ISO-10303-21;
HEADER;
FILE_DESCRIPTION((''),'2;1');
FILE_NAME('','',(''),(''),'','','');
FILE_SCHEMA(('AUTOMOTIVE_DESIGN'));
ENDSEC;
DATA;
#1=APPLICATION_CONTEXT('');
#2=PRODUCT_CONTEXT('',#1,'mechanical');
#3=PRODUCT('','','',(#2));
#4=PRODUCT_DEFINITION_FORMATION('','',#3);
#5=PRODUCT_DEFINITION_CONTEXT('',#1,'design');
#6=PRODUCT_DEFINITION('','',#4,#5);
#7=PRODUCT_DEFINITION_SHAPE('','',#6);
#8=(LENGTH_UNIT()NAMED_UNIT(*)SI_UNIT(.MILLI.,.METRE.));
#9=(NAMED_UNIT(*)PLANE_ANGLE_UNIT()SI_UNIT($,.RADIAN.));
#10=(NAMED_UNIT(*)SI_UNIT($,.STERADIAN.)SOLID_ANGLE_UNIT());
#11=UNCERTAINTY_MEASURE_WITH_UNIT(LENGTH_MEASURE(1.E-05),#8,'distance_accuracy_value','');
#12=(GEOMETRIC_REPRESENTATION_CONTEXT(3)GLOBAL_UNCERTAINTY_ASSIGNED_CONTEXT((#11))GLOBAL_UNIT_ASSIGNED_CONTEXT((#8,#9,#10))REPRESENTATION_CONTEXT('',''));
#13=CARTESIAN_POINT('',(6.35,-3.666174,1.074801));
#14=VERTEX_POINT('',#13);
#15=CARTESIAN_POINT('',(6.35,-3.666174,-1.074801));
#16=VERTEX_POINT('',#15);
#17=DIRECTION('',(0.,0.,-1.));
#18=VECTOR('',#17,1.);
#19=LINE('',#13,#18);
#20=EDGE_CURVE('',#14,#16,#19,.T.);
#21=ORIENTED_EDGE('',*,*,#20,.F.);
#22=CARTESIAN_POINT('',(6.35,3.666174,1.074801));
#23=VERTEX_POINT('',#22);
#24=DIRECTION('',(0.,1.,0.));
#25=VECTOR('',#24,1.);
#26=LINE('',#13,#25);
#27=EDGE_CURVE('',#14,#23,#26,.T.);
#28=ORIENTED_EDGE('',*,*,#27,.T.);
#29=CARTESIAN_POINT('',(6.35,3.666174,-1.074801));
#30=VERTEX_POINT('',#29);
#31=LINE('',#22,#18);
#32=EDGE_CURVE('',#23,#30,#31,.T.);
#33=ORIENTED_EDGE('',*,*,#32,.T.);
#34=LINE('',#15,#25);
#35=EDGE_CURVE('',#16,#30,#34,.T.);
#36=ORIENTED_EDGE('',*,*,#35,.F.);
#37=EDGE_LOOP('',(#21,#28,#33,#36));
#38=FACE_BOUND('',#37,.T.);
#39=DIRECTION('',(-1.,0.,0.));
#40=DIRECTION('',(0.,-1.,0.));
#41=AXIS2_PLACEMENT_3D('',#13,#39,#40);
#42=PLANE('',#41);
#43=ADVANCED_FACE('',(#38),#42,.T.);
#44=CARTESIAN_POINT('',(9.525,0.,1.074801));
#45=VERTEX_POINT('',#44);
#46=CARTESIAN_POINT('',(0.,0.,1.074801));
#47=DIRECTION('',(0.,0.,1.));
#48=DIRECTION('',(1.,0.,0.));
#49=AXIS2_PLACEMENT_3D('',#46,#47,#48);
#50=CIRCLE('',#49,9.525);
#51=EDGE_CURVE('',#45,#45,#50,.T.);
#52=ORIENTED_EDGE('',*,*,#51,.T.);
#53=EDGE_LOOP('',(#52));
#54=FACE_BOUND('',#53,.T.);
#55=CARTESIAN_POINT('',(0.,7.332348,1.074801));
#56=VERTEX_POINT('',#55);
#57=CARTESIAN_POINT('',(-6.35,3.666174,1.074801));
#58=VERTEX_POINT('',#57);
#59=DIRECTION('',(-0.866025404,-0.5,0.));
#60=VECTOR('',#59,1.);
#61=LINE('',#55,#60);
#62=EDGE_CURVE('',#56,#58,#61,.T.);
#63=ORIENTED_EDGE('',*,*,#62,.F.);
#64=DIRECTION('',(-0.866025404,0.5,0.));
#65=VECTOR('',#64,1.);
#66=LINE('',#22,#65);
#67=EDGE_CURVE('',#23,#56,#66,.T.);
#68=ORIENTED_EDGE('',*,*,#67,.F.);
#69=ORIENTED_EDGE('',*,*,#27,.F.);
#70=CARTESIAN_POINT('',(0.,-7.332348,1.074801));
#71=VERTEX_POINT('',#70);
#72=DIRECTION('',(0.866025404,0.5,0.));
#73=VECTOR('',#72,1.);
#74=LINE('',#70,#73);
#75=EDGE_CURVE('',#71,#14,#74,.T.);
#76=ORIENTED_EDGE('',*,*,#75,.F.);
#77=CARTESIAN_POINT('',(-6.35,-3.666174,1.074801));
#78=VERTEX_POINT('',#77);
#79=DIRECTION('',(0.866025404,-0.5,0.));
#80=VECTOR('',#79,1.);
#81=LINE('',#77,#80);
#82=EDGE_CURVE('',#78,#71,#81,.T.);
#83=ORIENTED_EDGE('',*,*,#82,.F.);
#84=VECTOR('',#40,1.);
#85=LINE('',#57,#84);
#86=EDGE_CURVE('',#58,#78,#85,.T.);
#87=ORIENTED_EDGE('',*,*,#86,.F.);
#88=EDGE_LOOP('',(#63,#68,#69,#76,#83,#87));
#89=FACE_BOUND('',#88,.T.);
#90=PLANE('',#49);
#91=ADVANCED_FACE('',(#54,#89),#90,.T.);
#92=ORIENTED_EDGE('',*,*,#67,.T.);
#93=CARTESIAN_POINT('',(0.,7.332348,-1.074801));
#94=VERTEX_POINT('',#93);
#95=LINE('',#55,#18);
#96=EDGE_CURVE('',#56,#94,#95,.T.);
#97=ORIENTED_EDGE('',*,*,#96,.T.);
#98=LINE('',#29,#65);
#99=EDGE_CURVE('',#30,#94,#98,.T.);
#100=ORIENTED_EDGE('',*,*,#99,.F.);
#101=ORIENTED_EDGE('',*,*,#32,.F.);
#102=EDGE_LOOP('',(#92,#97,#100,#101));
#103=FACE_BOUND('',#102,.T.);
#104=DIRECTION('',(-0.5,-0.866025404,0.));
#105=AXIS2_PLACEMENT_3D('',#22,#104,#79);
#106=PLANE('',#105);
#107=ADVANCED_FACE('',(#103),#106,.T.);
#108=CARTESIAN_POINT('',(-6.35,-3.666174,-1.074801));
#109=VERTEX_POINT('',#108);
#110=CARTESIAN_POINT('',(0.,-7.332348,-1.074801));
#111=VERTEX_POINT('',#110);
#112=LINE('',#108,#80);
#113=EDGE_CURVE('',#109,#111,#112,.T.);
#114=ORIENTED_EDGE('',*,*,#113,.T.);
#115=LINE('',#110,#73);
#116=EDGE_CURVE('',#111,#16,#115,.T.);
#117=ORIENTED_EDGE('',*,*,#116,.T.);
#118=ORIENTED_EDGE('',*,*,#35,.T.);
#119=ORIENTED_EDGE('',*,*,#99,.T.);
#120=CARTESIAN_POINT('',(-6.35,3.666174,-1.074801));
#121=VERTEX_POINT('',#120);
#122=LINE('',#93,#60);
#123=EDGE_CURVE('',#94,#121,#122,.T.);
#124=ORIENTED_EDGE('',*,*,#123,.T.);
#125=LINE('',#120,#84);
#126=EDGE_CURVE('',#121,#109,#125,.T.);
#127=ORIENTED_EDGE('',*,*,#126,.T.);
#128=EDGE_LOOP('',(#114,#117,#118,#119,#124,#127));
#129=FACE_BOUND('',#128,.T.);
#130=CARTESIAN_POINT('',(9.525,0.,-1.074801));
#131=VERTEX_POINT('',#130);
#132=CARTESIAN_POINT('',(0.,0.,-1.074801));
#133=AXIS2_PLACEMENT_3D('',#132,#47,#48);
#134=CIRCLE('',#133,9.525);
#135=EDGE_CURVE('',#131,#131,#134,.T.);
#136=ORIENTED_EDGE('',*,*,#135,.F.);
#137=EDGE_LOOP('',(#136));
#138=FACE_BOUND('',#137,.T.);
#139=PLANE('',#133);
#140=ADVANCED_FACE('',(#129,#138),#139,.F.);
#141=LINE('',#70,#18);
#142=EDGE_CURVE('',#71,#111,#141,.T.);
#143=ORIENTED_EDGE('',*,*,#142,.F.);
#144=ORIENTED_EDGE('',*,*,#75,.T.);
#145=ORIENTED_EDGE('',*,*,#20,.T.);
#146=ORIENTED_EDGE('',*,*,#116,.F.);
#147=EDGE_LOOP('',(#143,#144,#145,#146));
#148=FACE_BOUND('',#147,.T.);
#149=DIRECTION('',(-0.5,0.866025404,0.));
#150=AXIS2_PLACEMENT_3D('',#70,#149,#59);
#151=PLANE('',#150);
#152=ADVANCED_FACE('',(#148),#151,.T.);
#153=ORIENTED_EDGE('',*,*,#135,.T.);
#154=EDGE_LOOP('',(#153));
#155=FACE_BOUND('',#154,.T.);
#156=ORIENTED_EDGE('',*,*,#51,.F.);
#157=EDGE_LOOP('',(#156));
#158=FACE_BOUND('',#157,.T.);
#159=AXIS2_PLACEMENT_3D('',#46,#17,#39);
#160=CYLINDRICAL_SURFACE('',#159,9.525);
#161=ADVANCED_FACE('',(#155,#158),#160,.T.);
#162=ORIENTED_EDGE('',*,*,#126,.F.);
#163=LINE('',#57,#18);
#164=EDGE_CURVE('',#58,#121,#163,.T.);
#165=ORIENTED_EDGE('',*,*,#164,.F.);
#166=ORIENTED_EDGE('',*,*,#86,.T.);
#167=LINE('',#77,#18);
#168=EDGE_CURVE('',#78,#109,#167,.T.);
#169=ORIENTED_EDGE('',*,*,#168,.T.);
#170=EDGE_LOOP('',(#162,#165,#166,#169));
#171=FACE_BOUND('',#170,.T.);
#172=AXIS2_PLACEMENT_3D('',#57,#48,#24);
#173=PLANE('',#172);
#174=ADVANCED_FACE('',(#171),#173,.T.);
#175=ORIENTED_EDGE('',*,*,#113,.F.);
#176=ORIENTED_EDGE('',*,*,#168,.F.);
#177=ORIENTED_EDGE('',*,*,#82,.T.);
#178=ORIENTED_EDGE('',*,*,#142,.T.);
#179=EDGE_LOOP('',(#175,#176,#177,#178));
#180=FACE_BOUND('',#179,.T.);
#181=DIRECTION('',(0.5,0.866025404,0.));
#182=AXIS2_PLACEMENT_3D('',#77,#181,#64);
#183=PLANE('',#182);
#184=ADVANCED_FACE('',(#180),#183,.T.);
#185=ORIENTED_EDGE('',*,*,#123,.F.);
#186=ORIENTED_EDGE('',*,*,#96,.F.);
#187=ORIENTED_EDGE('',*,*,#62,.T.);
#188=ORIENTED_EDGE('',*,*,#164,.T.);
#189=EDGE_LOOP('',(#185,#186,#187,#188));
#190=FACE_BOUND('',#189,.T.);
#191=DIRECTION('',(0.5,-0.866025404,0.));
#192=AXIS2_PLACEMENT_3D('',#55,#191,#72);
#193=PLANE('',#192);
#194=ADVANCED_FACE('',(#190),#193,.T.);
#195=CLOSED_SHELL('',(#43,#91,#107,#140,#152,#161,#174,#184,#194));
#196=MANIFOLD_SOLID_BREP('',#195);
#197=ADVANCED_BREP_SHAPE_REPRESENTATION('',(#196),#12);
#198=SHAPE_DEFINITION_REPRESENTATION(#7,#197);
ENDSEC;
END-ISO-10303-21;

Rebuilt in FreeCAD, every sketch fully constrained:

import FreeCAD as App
import Part
import Sketcher
from FreeCAD import Vector
Q = App.Units.Quantity


def add_polygon(sketch, points):
    """Adds a closed chain of lines whose ends are joined by coincident constraints."""
    first, n = sketch.GeometryCount, len(points)
    for a, b in zip(points, points[1:] + points[:1]):
        sketch.addGeometry(Part.LineSegment(App.Vector(*a, 0), App.Vector(*b, 0)), False)
    for i in range(n):
        sketch.addConstraint(Sketcher.Constraint("Coincident", first + i, 2, first + (i + 1) % n, 1))

doc = App.newDocument("Part")
params = doc.addObject("Spreadsheet::Sheet", "Params")
for row, (alias, value) in enumerate([
    ("sketch1_diameter", "0.75 in"),
    ("pad1_length", "2.149602 mm"),
], start=1):
    params.set(f"A{row}", alias)
    params.set(f"B{row}", "=" + value)
    params.setAlias(f"B{row}", alias)

body = doc.addObject("PartDesign::Body", "Body")

# Sketch on XY plane
sketch1 = body.newObject("Sketcher::SketchObject", "Sketch")
sketch1.AttachmentSupport = (doc.getObject("XY_Plane"), [""])
sketch1.MapMode = "FlatFace"
sketch1.addGeometry(Part.Circle(Vector(0, 0, 0), Vector(0, 0, 1), 9.525), False)  # 0
add_polygon(sketch1, [(-6.35, 3.666174), (0, 7.332348), (6.35, 3.666174), (6.35, -3.666174), (0, -7.332348), (-6.35, -3.666174)])  # lines 1-6
sketch1.addConstraint([
    Sketcher.Constraint("Vertical", 3),
    Sketcher.Constraint("Vertical", 6),
    Sketcher.Constraint("Coincident", 0, 3, -1, 1),
    Sketcher.Constraint("Symmetric", 1, 2, 4, 2, -1, 1),
    Sketcher.Constraint("Symmetric", 2, 2, 5, 2, -1, 1),
    Sketcher.Constraint("PointOnObject", 1, 2, -2),
    Sketcher.Constraint("Parallel", 1, 4),
    Sketcher.Constraint("Horizontal", 3, 2, 5, 2),
    Sketcher.Constraint("Diameter", 0, Q("0.75 in")),
    Sketcher.Constraint("Angle", 1, Q("30 deg")),
    Sketcher.Constraint("DistanceX", 5, 2, 3, 2, Q("0.5 in")),
    Sketcher.Constraint("DistanceY", 3, 2, 3, 1, Q("7.332348 mm")),
])
sketch1.setExpression("Constraints[14]", "Params.sketch1_diameter")
pad1 = body.newObject("PartDesign::Pad", "Pad")
pad1.Profile = sketch1
pad1.setExpression("Length", "Params.pad1_length")
pad1.Midplane = True

doc.recompute()
